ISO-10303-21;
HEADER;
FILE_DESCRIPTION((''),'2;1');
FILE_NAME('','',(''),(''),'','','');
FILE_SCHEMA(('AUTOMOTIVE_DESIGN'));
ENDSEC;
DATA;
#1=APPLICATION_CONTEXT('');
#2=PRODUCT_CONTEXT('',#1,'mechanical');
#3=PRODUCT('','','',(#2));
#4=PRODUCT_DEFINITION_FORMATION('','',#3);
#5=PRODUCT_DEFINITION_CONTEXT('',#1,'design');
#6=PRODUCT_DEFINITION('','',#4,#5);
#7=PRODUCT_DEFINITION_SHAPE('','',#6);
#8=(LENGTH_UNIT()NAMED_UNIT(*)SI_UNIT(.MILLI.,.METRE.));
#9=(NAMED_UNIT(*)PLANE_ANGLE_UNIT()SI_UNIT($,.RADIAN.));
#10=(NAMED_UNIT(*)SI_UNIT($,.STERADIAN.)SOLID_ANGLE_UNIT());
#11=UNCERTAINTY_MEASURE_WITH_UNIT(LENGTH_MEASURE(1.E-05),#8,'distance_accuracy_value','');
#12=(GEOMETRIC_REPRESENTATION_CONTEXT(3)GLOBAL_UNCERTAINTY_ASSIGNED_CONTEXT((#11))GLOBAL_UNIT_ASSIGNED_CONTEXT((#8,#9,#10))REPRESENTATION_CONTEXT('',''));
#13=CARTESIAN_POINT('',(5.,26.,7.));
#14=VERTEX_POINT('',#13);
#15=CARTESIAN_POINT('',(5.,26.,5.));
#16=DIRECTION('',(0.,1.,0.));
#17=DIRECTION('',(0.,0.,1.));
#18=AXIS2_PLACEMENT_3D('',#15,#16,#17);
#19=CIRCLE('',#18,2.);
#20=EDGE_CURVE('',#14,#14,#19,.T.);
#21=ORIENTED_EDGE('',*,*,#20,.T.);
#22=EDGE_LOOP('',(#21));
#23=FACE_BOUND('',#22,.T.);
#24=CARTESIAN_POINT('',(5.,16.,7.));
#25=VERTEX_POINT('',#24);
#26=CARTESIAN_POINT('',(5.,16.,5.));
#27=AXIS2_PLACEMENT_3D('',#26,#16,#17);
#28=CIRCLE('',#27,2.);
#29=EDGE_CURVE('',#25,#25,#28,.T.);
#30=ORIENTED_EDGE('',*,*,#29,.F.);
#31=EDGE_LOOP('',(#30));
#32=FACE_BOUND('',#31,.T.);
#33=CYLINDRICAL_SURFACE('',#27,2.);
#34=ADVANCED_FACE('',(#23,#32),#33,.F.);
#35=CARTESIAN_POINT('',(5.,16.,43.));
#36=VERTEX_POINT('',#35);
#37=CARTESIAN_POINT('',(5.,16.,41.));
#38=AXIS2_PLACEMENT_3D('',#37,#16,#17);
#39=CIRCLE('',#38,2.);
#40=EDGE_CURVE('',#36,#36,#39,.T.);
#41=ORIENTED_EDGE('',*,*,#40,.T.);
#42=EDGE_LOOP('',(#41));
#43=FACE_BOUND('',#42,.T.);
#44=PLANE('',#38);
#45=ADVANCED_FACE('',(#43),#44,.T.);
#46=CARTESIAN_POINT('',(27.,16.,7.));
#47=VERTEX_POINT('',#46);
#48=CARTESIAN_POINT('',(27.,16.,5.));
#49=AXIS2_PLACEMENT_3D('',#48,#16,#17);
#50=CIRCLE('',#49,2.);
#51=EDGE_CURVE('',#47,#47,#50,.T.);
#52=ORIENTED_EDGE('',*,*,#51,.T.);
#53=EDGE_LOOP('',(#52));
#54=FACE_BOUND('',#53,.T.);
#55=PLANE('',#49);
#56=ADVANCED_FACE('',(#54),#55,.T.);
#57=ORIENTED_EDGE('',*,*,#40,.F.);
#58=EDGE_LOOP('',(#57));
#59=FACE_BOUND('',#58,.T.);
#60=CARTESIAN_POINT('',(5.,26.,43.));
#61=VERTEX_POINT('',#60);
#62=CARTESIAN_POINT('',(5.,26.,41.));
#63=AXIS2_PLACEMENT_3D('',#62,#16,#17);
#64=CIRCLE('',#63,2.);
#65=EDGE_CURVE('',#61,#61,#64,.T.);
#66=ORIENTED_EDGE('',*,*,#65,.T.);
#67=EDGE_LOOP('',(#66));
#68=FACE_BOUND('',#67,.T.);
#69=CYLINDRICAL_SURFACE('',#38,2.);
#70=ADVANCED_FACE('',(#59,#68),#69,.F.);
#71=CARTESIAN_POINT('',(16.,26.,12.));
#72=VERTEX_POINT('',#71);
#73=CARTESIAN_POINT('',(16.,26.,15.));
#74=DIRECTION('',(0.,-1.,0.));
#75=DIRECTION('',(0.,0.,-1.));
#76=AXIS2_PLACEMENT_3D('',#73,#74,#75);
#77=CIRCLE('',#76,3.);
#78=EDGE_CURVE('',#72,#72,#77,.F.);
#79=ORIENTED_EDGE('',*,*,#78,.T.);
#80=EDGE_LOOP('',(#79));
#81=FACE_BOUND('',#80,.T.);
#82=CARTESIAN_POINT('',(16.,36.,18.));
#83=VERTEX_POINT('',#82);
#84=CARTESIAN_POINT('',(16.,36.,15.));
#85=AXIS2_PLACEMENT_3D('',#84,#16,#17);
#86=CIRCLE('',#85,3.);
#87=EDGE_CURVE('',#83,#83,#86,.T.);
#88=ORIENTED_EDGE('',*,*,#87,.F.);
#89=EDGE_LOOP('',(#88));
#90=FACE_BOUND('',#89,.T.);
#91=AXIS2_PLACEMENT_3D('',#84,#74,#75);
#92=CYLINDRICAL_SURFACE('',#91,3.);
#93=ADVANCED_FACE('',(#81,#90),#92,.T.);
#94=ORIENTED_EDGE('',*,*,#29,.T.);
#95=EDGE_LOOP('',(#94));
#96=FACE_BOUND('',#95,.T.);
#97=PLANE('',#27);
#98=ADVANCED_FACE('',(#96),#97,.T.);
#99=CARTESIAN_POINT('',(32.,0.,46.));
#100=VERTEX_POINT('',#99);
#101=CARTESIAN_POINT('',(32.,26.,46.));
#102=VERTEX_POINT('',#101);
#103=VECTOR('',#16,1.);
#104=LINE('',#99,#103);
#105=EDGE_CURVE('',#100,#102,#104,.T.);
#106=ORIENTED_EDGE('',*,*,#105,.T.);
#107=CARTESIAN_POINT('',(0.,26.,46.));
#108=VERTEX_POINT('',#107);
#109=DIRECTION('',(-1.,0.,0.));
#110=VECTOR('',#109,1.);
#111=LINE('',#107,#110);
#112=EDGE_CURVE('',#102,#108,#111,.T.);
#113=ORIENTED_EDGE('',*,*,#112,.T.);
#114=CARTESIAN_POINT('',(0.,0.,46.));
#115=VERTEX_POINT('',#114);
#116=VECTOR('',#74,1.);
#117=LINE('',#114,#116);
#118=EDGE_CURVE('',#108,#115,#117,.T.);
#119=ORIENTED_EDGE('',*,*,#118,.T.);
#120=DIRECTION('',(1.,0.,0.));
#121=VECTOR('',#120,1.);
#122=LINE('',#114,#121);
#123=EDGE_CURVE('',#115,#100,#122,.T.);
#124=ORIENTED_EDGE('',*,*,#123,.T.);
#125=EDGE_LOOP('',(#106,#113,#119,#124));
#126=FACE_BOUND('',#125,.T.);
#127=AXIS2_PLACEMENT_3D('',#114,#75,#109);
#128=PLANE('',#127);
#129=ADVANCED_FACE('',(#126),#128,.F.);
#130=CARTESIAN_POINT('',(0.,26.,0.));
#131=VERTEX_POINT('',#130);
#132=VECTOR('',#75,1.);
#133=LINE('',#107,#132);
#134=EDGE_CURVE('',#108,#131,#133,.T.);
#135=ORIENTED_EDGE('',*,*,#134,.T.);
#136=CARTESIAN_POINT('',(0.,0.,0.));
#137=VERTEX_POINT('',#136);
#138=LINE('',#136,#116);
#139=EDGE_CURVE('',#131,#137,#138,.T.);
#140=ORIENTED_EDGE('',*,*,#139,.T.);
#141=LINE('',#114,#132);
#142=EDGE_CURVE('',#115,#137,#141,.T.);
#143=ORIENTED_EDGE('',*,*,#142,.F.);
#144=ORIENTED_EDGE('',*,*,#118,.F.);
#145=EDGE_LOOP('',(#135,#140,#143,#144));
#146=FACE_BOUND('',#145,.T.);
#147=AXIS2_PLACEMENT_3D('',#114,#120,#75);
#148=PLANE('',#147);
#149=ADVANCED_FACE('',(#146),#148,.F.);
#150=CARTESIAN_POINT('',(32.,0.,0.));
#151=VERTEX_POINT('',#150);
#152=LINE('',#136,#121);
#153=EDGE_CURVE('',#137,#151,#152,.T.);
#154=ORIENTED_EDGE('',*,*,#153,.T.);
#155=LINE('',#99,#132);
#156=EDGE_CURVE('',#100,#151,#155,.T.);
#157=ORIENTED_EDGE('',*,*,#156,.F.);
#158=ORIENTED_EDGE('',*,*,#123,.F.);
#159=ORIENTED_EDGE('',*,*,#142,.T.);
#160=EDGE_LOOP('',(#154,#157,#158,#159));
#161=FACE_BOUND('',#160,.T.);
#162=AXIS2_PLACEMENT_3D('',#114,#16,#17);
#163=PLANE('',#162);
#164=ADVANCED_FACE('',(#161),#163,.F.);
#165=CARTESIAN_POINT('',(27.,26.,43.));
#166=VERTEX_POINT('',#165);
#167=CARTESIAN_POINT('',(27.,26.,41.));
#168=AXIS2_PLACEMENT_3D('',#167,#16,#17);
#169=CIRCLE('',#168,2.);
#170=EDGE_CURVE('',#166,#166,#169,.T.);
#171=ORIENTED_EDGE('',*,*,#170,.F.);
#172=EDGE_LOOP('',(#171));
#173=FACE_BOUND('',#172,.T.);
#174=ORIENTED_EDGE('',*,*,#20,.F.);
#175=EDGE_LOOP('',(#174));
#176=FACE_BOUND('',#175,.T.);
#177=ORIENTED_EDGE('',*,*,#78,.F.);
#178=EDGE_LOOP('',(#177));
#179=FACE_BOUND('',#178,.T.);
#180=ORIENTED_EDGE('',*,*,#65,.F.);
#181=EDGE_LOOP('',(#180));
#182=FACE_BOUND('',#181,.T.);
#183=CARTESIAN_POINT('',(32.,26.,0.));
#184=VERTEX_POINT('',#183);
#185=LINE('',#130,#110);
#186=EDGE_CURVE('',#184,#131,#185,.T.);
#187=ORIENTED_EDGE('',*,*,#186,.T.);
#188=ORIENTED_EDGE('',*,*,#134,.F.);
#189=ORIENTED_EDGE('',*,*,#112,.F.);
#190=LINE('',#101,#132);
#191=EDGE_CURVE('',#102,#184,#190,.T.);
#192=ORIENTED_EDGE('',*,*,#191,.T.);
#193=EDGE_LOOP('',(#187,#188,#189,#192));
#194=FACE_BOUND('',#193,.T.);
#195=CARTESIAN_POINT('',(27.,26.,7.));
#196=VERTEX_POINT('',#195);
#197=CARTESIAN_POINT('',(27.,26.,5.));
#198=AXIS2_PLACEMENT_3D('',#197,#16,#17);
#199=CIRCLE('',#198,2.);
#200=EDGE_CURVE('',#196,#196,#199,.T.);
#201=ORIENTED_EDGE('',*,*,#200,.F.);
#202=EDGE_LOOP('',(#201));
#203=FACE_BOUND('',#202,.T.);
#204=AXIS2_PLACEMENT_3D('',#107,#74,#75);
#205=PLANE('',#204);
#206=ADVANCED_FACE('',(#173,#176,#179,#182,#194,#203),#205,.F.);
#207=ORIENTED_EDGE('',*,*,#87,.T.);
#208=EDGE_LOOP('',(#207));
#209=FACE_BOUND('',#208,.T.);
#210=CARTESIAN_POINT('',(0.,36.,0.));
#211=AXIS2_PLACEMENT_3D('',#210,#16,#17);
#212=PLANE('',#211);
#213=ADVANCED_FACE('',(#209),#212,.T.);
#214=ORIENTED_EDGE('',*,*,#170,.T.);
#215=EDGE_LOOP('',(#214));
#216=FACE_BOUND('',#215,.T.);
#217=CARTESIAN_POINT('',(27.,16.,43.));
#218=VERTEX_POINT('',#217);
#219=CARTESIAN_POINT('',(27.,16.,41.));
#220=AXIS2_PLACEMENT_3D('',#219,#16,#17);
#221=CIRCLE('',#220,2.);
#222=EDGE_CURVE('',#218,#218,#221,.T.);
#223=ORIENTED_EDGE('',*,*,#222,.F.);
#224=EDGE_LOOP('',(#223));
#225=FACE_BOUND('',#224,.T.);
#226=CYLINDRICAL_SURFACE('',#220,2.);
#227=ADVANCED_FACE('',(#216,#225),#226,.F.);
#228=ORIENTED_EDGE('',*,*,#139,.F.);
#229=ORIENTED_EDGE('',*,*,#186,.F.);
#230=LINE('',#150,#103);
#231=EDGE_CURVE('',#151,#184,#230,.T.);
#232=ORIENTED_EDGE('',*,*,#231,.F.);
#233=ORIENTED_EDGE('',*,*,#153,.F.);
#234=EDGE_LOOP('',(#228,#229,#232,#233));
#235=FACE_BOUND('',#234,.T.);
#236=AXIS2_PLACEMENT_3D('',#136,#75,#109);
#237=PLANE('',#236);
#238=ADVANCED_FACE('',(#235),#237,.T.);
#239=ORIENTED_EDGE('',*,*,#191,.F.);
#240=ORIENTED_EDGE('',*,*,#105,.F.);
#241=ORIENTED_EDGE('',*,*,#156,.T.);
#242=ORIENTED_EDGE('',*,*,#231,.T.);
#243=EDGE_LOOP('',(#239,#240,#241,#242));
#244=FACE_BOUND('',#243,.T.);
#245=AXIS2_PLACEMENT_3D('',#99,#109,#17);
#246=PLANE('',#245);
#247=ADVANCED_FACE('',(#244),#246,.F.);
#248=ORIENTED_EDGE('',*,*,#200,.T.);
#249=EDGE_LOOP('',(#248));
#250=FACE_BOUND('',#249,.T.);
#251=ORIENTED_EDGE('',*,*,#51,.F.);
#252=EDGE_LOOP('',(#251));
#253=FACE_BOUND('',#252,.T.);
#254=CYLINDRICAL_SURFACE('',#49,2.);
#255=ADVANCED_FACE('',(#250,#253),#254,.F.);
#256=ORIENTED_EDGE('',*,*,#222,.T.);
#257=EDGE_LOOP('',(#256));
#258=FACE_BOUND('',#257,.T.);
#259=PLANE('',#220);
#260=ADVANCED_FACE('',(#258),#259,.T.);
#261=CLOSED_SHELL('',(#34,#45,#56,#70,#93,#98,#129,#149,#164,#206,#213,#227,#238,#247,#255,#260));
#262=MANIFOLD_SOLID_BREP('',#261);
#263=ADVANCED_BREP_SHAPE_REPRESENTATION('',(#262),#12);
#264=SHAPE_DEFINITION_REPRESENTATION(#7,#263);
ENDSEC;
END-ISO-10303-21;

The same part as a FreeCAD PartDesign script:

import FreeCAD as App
import Part
import Sketcher
from FreeCAD import Vector
Q = App.Units.Quantity

doc = App.newDocument("Part")
body = doc.addObject("PartDesign::Body", "Body")

sketch1 = body.newObject("Sketcher::SketchObject", "Sketch")
sketch1.AttachmentSupport = (doc.getObject("XY_Plane"), [""])
sketch1.MapMode = "FlatFace"
sketch1.addGeometry([
    Part.LineSegment(Vector(0, 26, 0), Vector(0, 0, 0)),
    Part.LineSegment(Vector(0, 0, 0), Vector(32, 0, 0)),
    Part.LineSegment(Vector(32, 0, 0), Vector(32, 26, 0)),
    Part.LineSegment(Vector(32, 26, 0), Vector(0, 26, 0)),
], False)
sketch1.addConstraint([
    Sketcher.Constraint("Coincident", 0, 2, 1, 1),
    Sketcher.Constraint("Coincident", 1, 2, 2, 1),
    Sketcher.Constraint("Coincident", 2, 2, 3, 1),
    Sketcher.Constraint("Coincident", 3, 2, 0, 1),
    Sketcher.Constraint("Vertical", 0),
    Sketcher.Constraint("Horizontal", 1),
    Sketcher.Constraint("Vertical", 2),
    Sketcher.Constraint("Horizontal", 3),
    Sketcher.Constraint("Coincident", 0, 2, -1, 1),
    Sketcher.Constraint("DistanceX", 1, 1, 1, 2, Q("32 mm")),
    Sketcher.Constraint("DistanceY", 0, 2, 0, 1, Q("26 mm")),
])
pad1 = body.newObject("PartDesign::Pad", "Pad")
pad1.Profile = sketch1
pad1.Length = 46

sketch2 = body.newObject("Sketcher::SketchObject", "Sketch001")
sketch2.AttachmentSupport = (doc.getObject("XZ_Plane"), [""])
sketch2.MapMode = "FlatFace"
sketch2.AttachmentOffset = App.Placement(Vector(0, 0, -26), App.Rotation())
sketch2.addGeometry([
    Part.Circle(Vector(5, 5, 0), Vector(0, 0, 1), 2),
    Part.Circle(Vector(27, 5, 0), Vector(0, 0, 1), 2),
    Part.Circle(Vector(27, 41, 0), Vector(0, 0, 1), 2),
    Part.Circle(Vector(5, 41, 0), Vector(0, 0, 1), 2),
], False)
sketch2.addConstraint([
    Sketcher.Constraint("Equal", 0, 1),
    Sketcher.Constraint("Equal", 1, 2),
    Sketcher.Constraint("Equal", 2, 3),
    Sketcher.Constraint("Horizontal", 0, 3, 1, 3),
    Sketcher.Constraint("Horizontal", 2, 3, 3, 3),
    Sketcher.Constraint("Vertical", 1, 3, 2, 3),
    Sketcher.Constraint("Vertical", 0, 3, 3, 3),
    Sketcher.Constraint("Diameter", 0, Q("4 mm")),
    Sketcher.Constraint("DistanceX", -1, 1, 0, 3, Q("5 mm")),
    Sketcher.Constraint("DistanceY", -1, 1, 0, 3, Q("5 mm")),
    Sketcher.Constraint("DistanceX", -1, 1, 1, 3, Q("27 mm")),
    Sketcher.Constraint("DistanceY", -1, 1, 2, 3, Q("41 mm")),
])
pocket1 = body.newObject("PartDesign::Pocket", "Pocket")
pocket1.Profile = sketch2
pocket1.Length = 10
pocket1.Reversed = True

sketch3 = body.newObject("Sketcher::SketchObject", "Sketch002")
sketch3.AttachmentSupport = (doc.getObject("XZ_Plane"), [""])
sketch3.MapMode = "FlatFace"
sketch3.AttachmentOffset = App.Placement(Vector(0, 0, -26), App.Rotation())
sketch3.addGeometry(Part.Circle(Vector(16, 15, 0), Vector(0, 0, 1), 3), False)
sketch3.addConstraint([
    Sketcher.Constraint("Diameter", 0, Q("6 mm")),
    Sketcher.Constraint("DistanceX", -1, 1, 0, 3, Q("16 mm")),
    Sketcher.Constraint("DistanceY", -1, 1, 0, 3, Q("15 mm")),
])
pad2 = body.newObject("PartDesign::Pad", "Pad001")
pad2.Profile = sketch3
pad2.Length = 10
pad2.Reversed = True

doc.recompute()
